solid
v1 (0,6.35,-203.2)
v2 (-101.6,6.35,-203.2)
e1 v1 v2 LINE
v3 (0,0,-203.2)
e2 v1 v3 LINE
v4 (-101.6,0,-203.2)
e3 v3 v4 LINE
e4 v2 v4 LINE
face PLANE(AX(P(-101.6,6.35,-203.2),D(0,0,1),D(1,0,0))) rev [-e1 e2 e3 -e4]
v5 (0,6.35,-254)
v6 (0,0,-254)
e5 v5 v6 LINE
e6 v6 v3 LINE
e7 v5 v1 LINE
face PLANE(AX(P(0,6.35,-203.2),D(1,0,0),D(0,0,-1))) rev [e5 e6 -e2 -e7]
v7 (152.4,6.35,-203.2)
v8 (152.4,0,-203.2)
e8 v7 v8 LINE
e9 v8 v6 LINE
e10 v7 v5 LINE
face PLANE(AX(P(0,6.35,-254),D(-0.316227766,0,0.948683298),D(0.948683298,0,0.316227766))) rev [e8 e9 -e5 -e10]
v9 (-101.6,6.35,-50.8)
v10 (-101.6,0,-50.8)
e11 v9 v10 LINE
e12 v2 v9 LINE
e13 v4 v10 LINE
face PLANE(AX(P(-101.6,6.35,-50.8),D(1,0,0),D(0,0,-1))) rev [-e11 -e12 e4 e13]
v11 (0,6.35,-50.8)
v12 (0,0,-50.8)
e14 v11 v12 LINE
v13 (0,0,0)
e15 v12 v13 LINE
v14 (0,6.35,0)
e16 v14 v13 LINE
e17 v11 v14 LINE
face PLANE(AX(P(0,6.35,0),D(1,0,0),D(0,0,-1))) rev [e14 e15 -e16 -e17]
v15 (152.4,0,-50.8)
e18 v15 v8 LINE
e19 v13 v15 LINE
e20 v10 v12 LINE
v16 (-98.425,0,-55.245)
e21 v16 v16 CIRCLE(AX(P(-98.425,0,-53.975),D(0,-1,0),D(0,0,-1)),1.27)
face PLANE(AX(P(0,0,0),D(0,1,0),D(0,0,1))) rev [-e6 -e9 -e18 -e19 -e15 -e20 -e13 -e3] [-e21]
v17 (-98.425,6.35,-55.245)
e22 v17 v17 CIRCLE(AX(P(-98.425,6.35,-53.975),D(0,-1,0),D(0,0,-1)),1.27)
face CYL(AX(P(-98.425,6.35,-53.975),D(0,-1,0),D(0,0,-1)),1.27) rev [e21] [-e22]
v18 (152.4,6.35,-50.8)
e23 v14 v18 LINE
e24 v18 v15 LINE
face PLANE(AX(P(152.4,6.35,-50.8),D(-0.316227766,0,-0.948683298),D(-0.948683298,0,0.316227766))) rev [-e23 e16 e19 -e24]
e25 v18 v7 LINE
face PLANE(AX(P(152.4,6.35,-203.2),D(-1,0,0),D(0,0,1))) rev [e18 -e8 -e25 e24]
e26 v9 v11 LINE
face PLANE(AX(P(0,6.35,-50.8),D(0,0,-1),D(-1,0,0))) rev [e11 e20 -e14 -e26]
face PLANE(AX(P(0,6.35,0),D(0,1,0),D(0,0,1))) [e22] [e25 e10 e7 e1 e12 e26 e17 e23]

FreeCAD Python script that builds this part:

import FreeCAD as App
import Part
import Sketcher

V = App.Vector
Q = App.Units.Quantity

doc = App.newDocument("Part")
body = doc.addObject("PartDesign::Body", "Body")

# Sketch on XZ plane
sketch1 = body.newObject("Sketcher::SketchObject", "Sketch")
sketch1.AttachmentSupport = (doc.getObject("XZ_Plane"), [""])
sketch1.MapMode = "FlatFace"
sketch1.addGeometry([
    Part.LineSegment(V(152.4, -203.2, 0), V(0, -254, 0)),  # 0
    Part.LineSegment(V(0, -254, 0), V(0, -203.2, 0)),  # 1
    Part.LineSegment(V(0, -203.2, 0), V(-101.6, -203.2, 0)),  # 2
    Part.LineSegment(V(-101.6, -203.2, 0), V(-101.6, -50.8, 0)),  # 3
    Part.LineSegment(V(-101.6, -50.8, 0), V(0, -50.8, 0)),  # 4
    Part.LineSegment(V(0, -50.8, 0), V(0, 0, 0)),  # 5
    Part.LineSegment(V(0, 0, 0), V(152.4, -50.8, 0)),  # 6
    Part.LineSegment(V(152.4, -50.8, 0), V(152.4, -203.2, 0)),  # 7
], False)
sketch1.addConstraint([
    Sketcher.Constraint("Coincident", 0, 2, 1, 1),
    Sketcher.Constraint("Coincident", 1, 2, 2, 1),
    Sketcher.Constraint("Coincident", 2, 2, 3, 1),
    Sketcher.Constraint("Coincident", 3, 2, 4, 1),
    Sketcher.Constraint("Coincident", 4, 2, 5, 1),
    Sketcher.Constraint("Coincident", 5, 2, 6, 1),
    Sketcher.Constraint("Coincident", 6, 2, 7, 1),
    Sketcher.Constraint("Coincident", 7, 2, 0, 1),
    Sketcher.Constraint("Vertical", 1),
    Sketcher.Constraint("Horizontal", 2),
    Sketcher.Constraint("Vertical", 3),
    Sketcher.Constraint("Horizontal", 4),
    Sketcher.Constraint("Vertical", 5),
    Sketcher.Constraint("Vertical", 7),
    Sketcher.Constraint("Coincident", 5, 2, -1, 1),
    Sketcher.Constraint("PointOnObject", 0, 2, -2),
    Sketcher.Constraint("Horizontal", 4, 2, 6, 2),
    Sketcher.Constraint("Horizontal", 2, 2, 7, 2),
    Sketcher.Constraint("Equal", 1, 5),
    Sketcher.Constraint("DistanceX", 2, 2, 2, 1, Q("4 in")),
    Sketcher.Constraint("DistanceY", 1, 1, 1, 2, Q("2 in")),
    Sketcher.Constraint("DistanceY", 3, 1, 3, 2, Q("6 in")),
    Sketcher.Constraint("DistanceX", -1, 1, 6, 2, Q("6 in")),
])
pad1 = body.newObject("PartDesign::Pad", "Pad")
pad1.Profile = sketch1
pad1.Length = Q("0.25 in")
pad1.Reversed = True

# Sketch on XZ plane
sketch2 = body.newObject("Sketcher::SketchObject", "Sketch001")
sketch2.AttachmentSupport = (doc.getObject("XZ_Plane"), [""])
sketch2.MapMode = "FlatFace"
sketch2.addGeometry(Part.Circle(V(-98.425, -53.975, 0), V(0, 0, 1), 1.27), False)
sketch2.addConstraint([
    Sketcher.Constraint("Diameter", 0, Q("0.1 in")),
    Sketcher.Constraint("DistanceX", 0, 3, -1, 1, Q("3.875 in")),
    Sketcher.Constraint("DistanceY", 0, 3, -1, 1, Q("2.125 in")),
])
pocket1 = body.newObject("PartDesign::Pocket", "Pocket")
pocket1.Profile = sketch2
pocket1.Type = "ThroughAll"

doc.recompute()
